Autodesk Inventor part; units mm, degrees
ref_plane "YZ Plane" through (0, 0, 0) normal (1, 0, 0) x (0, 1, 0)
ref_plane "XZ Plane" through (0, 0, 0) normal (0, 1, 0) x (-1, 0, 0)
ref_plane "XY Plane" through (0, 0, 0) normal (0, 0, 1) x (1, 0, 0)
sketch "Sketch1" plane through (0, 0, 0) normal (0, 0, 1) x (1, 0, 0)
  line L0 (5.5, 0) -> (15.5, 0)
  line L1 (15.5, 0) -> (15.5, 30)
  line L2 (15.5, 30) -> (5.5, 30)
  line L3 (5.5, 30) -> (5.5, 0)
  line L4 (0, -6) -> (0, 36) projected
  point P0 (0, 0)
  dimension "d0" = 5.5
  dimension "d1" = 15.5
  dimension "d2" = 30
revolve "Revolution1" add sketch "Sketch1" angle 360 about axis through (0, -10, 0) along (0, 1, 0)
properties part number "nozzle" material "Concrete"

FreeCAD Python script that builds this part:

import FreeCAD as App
import Part
import Sketcher
from FreeCAD import Vector

doc = App.newDocument("Part")
body = doc.addObject("PartDesign::Body", "Body")

# Sketch on XY plane
sketch1 = doc.addObject("Sketcher::SketchObject", "Sketch")
body.addObject(sketch1)
sketch1.AttachmentSupport = (doc.XY_Plane, [""])
sketch1.MapMode = "FlatFace"
sketch1.addGeometry(Part.LineSegment(Vector(6, 30, 0), Vector(6, 0, 0)), False)
sketch1.addGeometry(Part.LineSegment(Vector(6, 0, 0), Vector(16, 0, 0)), False)
sketch1.addGeometry(Part.LineSegment(Vector(16, 0, 0), Vector(16, 30, 0)), False)
sketch1.addGeometry(Part.LineSegment(Vector(16, 30, 0), Vector(6, 30, 0)), False)
sketch1.addConstraint(Sketcher.Constraint("Coincident", 0, 2, 1, 1))
sketch1.addConstraint(Sketcher.Constraint("Coincident", 1, 2, 2, 1))
sketch1.addConstraint(Sketcher.Constraint("Coincident", 2, 2, 3, 1))
sketch1.addConstraint(Sketcher.Constraint("Coincident", 3, 2, 0, 1))
sketch1.addConstraint(Sketcher.Constraint("Vertical", 0))
sketch1.addConstraint(Sketcher.Constraint("Horizontal", 1))
sketch1.addConstraint(Sketcher.Constraint("Vertical", 2))
sketch1.addConstraint(Sketcher.Constraint("Horizontal", 3))
sketch1.addConstraint(Sketcher.Constraint("PointOnObject", 0, 2, -1))
sketch1.addConstraint(Sketcher.Constraint("DistanceY", 0, 2, 0, 1, 30.0))
sketch1.addConstraint(Sketcher.Constraint("DistanceX", -1, 1, 0, 2, 5.5))
sketch1.addConstraint(Sketcher.Constraint("DistanceX", -1, 1, 1, 2, 15.5))
revolution = doc.addObject("PartDesign::Revolution", "Revolution")
body.addObject(revolution)
revolution.Profile = sketch1
revolution.ReferenceAxis = (sketch1, ["V_Axis"])
revolution.Angle = 360

doc.recompute()
